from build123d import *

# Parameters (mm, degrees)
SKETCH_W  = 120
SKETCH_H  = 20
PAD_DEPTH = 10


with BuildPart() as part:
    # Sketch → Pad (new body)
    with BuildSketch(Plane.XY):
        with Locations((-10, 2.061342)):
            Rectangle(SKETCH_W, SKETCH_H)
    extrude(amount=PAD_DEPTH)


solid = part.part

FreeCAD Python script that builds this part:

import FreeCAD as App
import Part
import Sketcher

doc = App.newDocument("Part")
body = doc.addObject("PartDesign::Body", "Body")

sketch1 = body.newObject("Sketcher::SketchObject", "Sketch")
sketch1.AttachmentSupport = (doc.getObject("XY_Plane"), [""])
sketch1.MapMode = "FlatFace"
sketch1.addGeometry(Part.LineSegment(App.Vector(-70, 12, 0), App.Vector(-70, -8, 0)), False)
sketch1.addGeometry(Part.LineSegment(App.Vector(-70, -8, 0), App.Vector(50, -8, 0)), False)
sketch1.addGeometry(Part.LineSegment(App.Vector(50, -8, 0), App.Vector(50, 12, 0)), False)
sketch1.addGeometry(Part.LineSegment(App.Vector(50, 12, 0), App.Vector(-70, 12, 0)), False)
sketch1.addConstraint(Sketcher.Constraint("Coincident", 0, 2, 1, 1))
sketch1.addConstraint(Sketcher.Constraint("Coincident", 1, 2, 2, 1))
sketch1.addConstraint(Sketcher.Constraint("Coincident", 2, 2, 3, 1))
sketch1.addConstraint(Sketcher.Constraint("Coincident", 3, 2, 0, 1))
sketch1.addConstraint(Sketcher.Constraint("Vertical", 0))
sketch1.addConstraint(Sketcher.Constraint("Horizontal", 1))
sketch1.addConstraint(Sketcher.Constraint("Vertical", 2))
sketch1.addConstraint(Sketcher.Constraint("Horizontal", 3))
sketch1.addConstraint(Sketcher.Constraint("DistanceX", 1, 1, 1, 2, 120.0))
sketch1.addConstraint(Sketcher.Constraint("DistanceY", 0, 2, 0, 1, 20.0))
sketch1.addConstraint(Sketcher.Constraint("DistanceX", 0, 2, -1, 1, 70.0))
sketch1.addConstraint(Sketcher.Constraint("DistanceY", 0, 2, -1, 1, 7.938658))
pad1 = body.newObject("PartDesign::Pad", "Pad")
pad1.Profile = sketch1
pad1.Length = 10

doc.recompute()
